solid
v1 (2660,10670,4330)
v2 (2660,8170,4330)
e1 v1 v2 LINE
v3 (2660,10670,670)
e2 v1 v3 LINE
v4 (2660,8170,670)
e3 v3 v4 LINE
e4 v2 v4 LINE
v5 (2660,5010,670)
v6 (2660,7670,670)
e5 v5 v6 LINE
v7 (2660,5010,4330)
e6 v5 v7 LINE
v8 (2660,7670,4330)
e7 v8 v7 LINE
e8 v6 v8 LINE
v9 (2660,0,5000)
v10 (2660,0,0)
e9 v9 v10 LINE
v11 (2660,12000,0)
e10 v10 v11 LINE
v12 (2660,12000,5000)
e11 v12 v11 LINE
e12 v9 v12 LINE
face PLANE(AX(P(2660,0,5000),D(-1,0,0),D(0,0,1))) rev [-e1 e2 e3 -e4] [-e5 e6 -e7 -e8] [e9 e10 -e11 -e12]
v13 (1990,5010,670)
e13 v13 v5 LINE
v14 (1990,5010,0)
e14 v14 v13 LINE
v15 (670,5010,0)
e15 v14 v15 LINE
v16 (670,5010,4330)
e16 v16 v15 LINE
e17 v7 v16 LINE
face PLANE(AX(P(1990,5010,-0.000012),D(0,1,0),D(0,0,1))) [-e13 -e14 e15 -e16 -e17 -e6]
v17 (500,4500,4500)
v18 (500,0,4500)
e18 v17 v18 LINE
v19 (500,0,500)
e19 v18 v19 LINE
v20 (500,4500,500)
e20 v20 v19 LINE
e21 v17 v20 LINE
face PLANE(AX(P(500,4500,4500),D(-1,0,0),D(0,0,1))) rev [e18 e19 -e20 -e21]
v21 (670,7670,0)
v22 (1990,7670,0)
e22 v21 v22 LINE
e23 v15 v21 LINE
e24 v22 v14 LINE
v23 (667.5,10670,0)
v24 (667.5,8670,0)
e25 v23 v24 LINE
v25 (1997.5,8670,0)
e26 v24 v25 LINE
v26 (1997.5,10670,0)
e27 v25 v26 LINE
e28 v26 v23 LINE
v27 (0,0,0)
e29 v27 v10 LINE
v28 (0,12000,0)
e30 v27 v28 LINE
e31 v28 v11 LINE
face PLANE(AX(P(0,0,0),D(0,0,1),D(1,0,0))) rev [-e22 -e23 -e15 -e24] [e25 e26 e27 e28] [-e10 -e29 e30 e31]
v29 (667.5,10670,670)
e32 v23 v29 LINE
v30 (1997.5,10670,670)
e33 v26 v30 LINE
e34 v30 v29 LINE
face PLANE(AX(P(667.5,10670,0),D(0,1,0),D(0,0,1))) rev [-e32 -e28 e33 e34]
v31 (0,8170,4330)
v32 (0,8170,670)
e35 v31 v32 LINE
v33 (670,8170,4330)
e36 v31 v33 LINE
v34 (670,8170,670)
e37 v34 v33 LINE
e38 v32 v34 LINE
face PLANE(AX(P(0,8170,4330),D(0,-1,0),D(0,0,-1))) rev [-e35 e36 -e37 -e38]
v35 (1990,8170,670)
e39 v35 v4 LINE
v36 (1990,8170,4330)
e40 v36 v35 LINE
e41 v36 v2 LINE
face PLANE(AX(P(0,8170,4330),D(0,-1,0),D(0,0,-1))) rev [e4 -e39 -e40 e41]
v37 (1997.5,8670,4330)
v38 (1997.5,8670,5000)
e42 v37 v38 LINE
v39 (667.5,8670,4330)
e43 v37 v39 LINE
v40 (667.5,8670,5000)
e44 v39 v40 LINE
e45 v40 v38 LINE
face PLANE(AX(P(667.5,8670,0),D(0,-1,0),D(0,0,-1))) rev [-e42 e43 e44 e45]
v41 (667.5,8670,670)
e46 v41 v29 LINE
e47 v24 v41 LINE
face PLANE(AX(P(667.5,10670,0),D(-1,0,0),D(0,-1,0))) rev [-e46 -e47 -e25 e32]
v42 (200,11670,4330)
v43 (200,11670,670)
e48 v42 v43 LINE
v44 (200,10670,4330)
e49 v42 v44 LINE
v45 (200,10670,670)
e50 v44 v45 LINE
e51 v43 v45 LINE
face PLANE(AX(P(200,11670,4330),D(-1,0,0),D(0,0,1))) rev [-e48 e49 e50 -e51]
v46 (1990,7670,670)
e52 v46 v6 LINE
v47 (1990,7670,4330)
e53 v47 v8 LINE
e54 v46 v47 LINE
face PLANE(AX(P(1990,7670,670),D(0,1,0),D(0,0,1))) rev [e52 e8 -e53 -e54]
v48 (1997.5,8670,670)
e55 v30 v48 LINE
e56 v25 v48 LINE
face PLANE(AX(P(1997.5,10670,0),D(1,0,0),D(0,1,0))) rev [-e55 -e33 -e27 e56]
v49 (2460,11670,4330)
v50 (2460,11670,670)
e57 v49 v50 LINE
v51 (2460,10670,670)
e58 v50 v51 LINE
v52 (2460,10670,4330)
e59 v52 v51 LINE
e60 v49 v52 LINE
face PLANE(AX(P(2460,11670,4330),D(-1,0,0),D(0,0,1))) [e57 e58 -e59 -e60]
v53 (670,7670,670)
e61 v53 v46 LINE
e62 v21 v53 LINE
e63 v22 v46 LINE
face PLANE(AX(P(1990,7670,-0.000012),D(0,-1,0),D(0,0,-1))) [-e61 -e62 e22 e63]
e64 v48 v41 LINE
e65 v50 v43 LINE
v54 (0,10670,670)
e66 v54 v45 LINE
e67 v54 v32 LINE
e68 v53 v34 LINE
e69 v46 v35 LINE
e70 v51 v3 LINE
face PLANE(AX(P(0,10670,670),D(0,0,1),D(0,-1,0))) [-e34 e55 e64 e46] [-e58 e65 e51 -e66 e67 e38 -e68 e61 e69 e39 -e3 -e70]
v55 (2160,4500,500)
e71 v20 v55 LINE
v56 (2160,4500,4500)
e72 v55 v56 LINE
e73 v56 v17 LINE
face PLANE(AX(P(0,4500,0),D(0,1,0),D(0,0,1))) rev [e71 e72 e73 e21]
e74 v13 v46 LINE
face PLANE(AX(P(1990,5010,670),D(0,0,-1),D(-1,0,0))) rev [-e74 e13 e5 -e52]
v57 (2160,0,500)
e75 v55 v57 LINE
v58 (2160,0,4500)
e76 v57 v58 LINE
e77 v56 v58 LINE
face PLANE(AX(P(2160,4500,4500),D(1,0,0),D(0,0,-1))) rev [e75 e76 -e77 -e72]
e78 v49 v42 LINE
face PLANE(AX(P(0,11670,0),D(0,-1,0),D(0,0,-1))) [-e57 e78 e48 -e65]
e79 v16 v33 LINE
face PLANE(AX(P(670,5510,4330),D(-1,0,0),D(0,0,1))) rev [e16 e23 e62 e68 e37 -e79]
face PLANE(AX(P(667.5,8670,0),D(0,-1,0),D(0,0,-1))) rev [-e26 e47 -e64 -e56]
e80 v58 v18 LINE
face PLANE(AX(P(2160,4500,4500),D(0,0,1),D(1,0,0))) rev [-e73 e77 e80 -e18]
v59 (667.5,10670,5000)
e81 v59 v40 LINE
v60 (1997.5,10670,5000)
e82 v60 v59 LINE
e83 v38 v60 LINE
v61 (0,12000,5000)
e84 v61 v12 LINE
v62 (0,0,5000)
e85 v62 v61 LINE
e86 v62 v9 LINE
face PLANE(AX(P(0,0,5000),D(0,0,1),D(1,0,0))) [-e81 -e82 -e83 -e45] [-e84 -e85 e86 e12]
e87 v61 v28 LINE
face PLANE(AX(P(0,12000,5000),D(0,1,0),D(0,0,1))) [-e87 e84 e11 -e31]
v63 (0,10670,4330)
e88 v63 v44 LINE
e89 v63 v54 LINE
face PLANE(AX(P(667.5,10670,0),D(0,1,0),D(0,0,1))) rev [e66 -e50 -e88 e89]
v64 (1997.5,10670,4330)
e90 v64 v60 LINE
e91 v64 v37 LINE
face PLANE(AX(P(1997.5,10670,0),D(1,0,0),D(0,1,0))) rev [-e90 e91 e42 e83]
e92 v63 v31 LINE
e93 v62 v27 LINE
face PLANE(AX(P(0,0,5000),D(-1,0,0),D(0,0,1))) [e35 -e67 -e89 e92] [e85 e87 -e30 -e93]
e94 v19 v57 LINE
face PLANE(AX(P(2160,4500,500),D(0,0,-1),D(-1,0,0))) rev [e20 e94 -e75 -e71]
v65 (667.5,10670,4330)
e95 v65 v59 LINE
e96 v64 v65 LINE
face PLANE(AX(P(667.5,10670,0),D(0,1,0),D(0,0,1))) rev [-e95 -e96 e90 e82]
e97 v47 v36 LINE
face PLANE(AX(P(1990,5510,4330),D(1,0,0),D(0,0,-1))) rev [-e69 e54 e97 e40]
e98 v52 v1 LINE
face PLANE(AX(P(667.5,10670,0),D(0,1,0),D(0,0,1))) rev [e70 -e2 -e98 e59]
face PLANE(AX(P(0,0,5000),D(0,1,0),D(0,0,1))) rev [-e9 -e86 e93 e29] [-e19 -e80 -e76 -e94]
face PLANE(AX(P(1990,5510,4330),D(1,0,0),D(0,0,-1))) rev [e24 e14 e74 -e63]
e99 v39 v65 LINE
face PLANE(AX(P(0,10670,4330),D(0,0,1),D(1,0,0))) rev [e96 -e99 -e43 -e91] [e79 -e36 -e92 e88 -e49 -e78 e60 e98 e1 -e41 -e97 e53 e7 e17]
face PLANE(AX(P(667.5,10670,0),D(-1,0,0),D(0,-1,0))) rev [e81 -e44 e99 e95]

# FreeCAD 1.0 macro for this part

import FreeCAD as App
import Part
import Sketcher
from FreeCAD import Vector


def add_polygon(sketch, points):
    """Adds a closed chain of lines whose ends are joined by coincident constraints."""
    first, n = sketch.GeometryCount, len(points)
    for a, b in zip(points, points[1:] + points[:1]):
        sketch.addGeometry(Part.LineSegment(App.Vector(*a, 0), App.Vector(*b, 0)), False)
    for i in range(n):
        sketch.addConstraint(Sketcher.Constraint("Coincident", first + i, 2, first + (i + 1) % n, 1))

doc = App.newDocument("Part")
params = doc.addObject("Spreadsheet::Sheet", "Params")
for row, (alias, value) in enumerate([
    ("sketch1_width", "2660 mm"),
    ("sketch1_height", "12000 mm"),
    ("pad1_length", "5000 mm"),
    ("sketch2_width", "1330 mm"),
    ("sketch2_height", "2000 mm"),
    ("pocket1_length", "5000 mm"),
    ("sketch3_width", "2500 mm"),
    ("sketch3_height", "3660 mm"),
    ("sketch4_width", "1320 mm"),
    ("sketch4_height", "3660 mm"),
    ("pocket3_length", "2660 mm"),
    ("sketch5_height", "2660 mm"),
    ("sketch5_width", "1322.5 mm"),
    ("pocket4_length", "13270.348138 mm"),
    ("pocket4_length2", "4269 mm"),
    ("sketch6_height", "500 mm"),
    ("sketch6_width", "1322.5 mm"),
    ("pocket5_length", "61 mm"),
    ("sketch7_width", "2660 mm"),
    ("sketch7_height", "4269 mm"),
    ("pad2_length", "2.5 mm"),
    ("sketch8_width", "500 mm"),
    ("sketch8_height", "61 mm"),
    ("pad3_length", "2.5 mm"),
    ("sketch9_width", "2660 mm"),
    ("pocket6_length", "670 mm"),
    ("sketch10_width", "670 mm"),
    ("sketch10_height", "2660 mm"),
    ("pad4_length", "11.651451 mm"),
    ("sketch11_width", "2260 mm"),
    ("sketch11_height", "3660 mm"),
    ("pocket7_length", "1000 mm"),
    ("sketch12_width", "1660 mm"),
    ("sketch12_height", "4000 mm"),
    ("pocket8_length", "4500 mm"),
], start=1):
    params.set(f"A{row}", alias)
    params.set(f"B{row}", "=" + value)
    params.setAlias(f"B{row}", alias)

body = doc.addObject("PartDesign::Body", "Body")

# Sketch on XY plane
sketch1 = doc.addObject("Sketcher::SketchObject", "Sketch")
body.addObject(sketch1)
sketch1.AttachmentSupport = (doc.XY_Plane, [""])
sketch1.MapMode = "FlatFace"
add_polygon(sketch1, [(0, 12000), (0, 0), (2660, 0), (2660, 12000)])  # lines 0-3
sketch1.addConstraint(Sketcher.Constraint("Vertical", 0))
sketch1.addConstraint(Sketcher.Constraint("Horizontal", 1))
sketch1.addConstraint(Sketcher.Constraint("Vertical", 2))
sketch1.addConstraint(Sketcher.Constraint("Horizontal", 3))
sketch1.addConstraint(Sketcher.Constraint("Coincident", 0, 2, -1, 1))
sketch1.addConstraint(Sketcher.Constraint("DistanceX", 1, 1, 1, 2, 2660.0))
sketch1.addConstraint(Sketcher.Constraint("DistanceY", 0, 2, 0, 1, 12000.0))
sketch1.setExpression("Constraints[9]", "Params.sketch1_width")
sketch1.setExpression("Constraints[10]", "Params.sketch1_height")
pad1 = doc.addObject("PartDesign::Pad", "Pad")
body.addObject(pad1)
pad1.Profile = sketch1
pad1.setExpression("Length", "Params.pad1_length")

# Sketch on XY plane
sketch2 = doc.addObject("Sketcher::SketchObject", "Sketch001")
body.addObject(sketch2)
sketch2.AttachmentSupport = (doc.XY_Plane, [""])
sketch2.MapMode = "FlatFace"
sketch2.AttachmentOffset = App.Placement(Vector(0, 0, 5000), App.Rotation())
add_polygon(sketch2, [(668, 10670), (668, 8670), (1998, 8670), (1998, 10670)])  # lines 0-3
sketch2.addConstraint(Sketcher.Constraint("Vertical", 0))
sketch2.addConstraint(Sketcher.Constraint("Horizontal", 1))
sketch2.addConstraint(Sketcher.Constraint("Vertical", 2))
sketch2.addConstraint(Sketcher.Constraint("Horizontal", 3))
sketch2.addConstraint(Sketcher.Constraint("DistanceX", 1, 1, 1, 2, 1330.0))
sketch2.addConstraint(Sketcher.Constraint("DistanceY", 0, 2, 0, 1, 2000.0))
sketch2.addConstraint(Sketcher.Constraint("DistanceY", -1, 1, 0, 2, 8670.0))
sketch2.addConstraint(Sketcher.Constraint("DistanceX", -1, 1, 0, 2, 667.5))
sketch2.setExpression("Constraints[8]", "Params.sketch2_width")
sketch2.setExpression("Constraints[9]", "Params.sketch2_height")
pocket1 = doc.addObject("PartDesign::Pocket", "Pocket")
body.addObject(pocket1)
pocket1.Profile = sketch2
pocket1.setExpression("Length", "Params.pocket1_length")

# Sketch on YZ plane
sketch3 = doc.addObject("Sketcher::SketchObject", "Sketch002")
body.addObject(sketch3)
sketch3.AttachmentSupport = (doc.YZ_Plane, [""])
sketch3.MapMode = "FlatFace"
sketch3.AttachmentOffset = App.Placement(Vector(0, 0, 2660), App.Rotation())
add_polygon(sketch3, [(10670, 4330), (8170, 4330), (8170, 670), (10670, 670)])  # lines 0-3
sketch3.addConstraint(Sketcher.Constraint("Horizontal", 0))
sketch3.addConstraint(Sketcher.Constraint("Vertical", 1))
sketch3.addConstraint(Sketcher.Constraint("Horizontal", 2))
sketch3.addConstraint(Sketcher.Constraint("Vertical", 3))
sketch3.addConstraint(Sketcher.Constraint("DistanceX", 0, 2, 0, 1, 2500.0))
sketch3.addConstraint(Sketcher.Constraint("DistanceY", 1, 2, 1, 1, 3660.0))
sketch3.addConstraint(Sketcher.Constraint("DistanceX", -1, 1, 0, 2, 8170.0))
sketch3.addConstraint(Sketcher.Constraint("DistanceY", -1, 1, 0, 2, 4330.0))
sketch3.setExpression("Constraints[8]", "Params.sketch3_width")
sketch3.setExpression("Constraints[9]", "Params.sketch3_height")
pocket2 = doc.addObject("PartDesign::Pocket", "Pocket001")
body.addObject(pocket2)
pocket2.Profile = sketch3
pocket2.Type = "ThroughAll"

# Sketch on XZ plane
sketch4 = doc.addObject("Sketcher::SketchObject", "Sketch003")
body.addObject(sketch4)
sketch4.AttachmentSupport = (doc.XZ_Plane, [""])
sketch4.MapMode = "FlatFace"
sketch4.AttachmentOffset = App.Placement(Vector(0, 0, -8170), App.Rotation())
add_polygon(sketch4, [(670, 670), (670, 4330), (1990, 4330), (1990, 670)])  # lines 0-3
sketch4.addConstraint(Sketcher.Constraint("Vertical", 0))
sketch4.addConstraint(Sketcher.Constraint("Horizontal", 1))
sketch4.addConstraint(Sketcher.Constraint("Vertical", 2))
sketch4.addConstraint(Sketcher.Constraint("Horizontal", 3))
sketch4.addConstraint(Sketcher.Constraint("DistanceX", 1, 1, 1, 2, 1320.0))
sketch4.addConstraint(Sketcher.Constraint("DistanceY", 0, 1, 0, 2, 3660.0))
sketch4.addConstraint(Sketcher.Constraint("DistanceX", -1, 1, 0, 2, 670.0))
sketch4.addConstraint(Sketcher.Constraint("DistanceY", -1, 1, 0, 2, 4330.0))
sketch4.setExpression("Constraints[8]", "Params.sketch4_width")
sketch4.setExpression("Constraints[9]", "Params.sketch4_height")
pocket3 = doc.addObject("PartDesign::Pocket", "Pocket002")
body.addObject(pocket3)
pocket3.Profile = sketch4
pocket3.setExpression("Length", "Params.pocket3_length")
pocket3.Reversed = True

# Sketch on XY plane
sketch5 = doc.addObject("Sketcher::SketchObject", "Sketch004")
body.addObject(sketch5)
sketch5.AttachmentSupport = (doc.XY_Plane, [""])
sketch5.MapMode = "FlatFace"
add_polygon(sketch5, [(1990, 7670), (1990, 5010), (668, 5010), (668, 7670)])  # lines 0-3
sketch5.addConstraint(Sketcher.Constraint("Vertical", 0))
sketch5.addConstraint(Sketcher.Constraint("Horizontal", 1))
sketch5.addConstraint(Sketcher.Constraint("Vertical", 2))
sketch5.addConstraint(Sketcher.Constraint("Horizontal", 3))
sketch5.addConstraint(Sketcher.Constraint("DistanceY", 0, 2, 0, 1, 2660.0))
sketch5.addConstraint(Sketcher.Constraint("DistanceX", 1, 2, 1, 1, 1322.5))
sketch5.addConstraint(Sketcher.Constraint("DistanceX", -1, 1, 0, 2, 1990.0))
sketch5.addConstraint(Sketcher.Constraint("DistanceY", -1, 1, 0, 2, 5010.0))
sketch5.setExpression("Constraints[8]", "Params.sketch5_height")
sketch5.setExpression("Constraints[9]", "Params.sketch5_width")
pocket4 = doc.addObject("PartDesign::Pocket", "Pocket003")
body.addObject(pocket4)
pocket4.Profile = sketch5
pocket4.Type = "TwoLengths"
pocket4.setExpression("Length", "Params.pocket4_length")
pocket4.setExpression("Length2", "Params.pocket4_length2")

# Sketch on XY plane
sketch6 = doc.addObject("Sketcher::SketchObject", "Sketch005")
body.addObject(sketch6)
sketch6.AttachmentSupport = (doc.XY_Plane, [""])
sketch6.MapMode = "FlatFace"
sketch6.AttachmentOffset = App.Placement(Vector(0, 0, 4269), App.Rotation())
add_polygon(sketch6, [(1990, 5510), (1990, 5010), (668, 5010), (668, 5510)])  # lines 0-3
sketch6.addConstraint(Sketcher.Constraint("Vertical", 0))
sketch6.addConstraint(Sketcher.Constraint("Horizontal", 1))
sketch6.addConstraint(Sketcher.Constraint("Vertical", 2))
sketch6.addConstraint(Sketcher.Constraint("Horizontal", 3))
sketch6.addConstraint(Sketcher.Constraint("DistanceY", 0, 2, 0, 1, 500.0))
sketch6.addConstraint(Sketcher.Constraint("DistanceX", 1, 2, 1, 1, 1322.5))
sketch6.addConstraint(Sketcher.Constraint("DistanceX", -1, 1, 0, 2, 1990.0))
sketch6.addConstraint(Sketcher.Constraint("DistanceY", -1, 1, 0, 2, 5010.0))
sketch6.setExpression("Constraints[8]", "Params.sketch6_height")
sketch6.setExpression("Constraints[9]", "Params.sketch6_width")
pocket5 = doc.addObject("PartDesign::Pocket", "Pocket004")
body.addObject(pocket5)
pocket5.Profile = sketch6
pocket5.setExpression("Length", "Params.pocket5_length")
pocket5.Reversed = True

# Sketch on YZ plane
sketch7 = doc.addObject("Sketcher::SketchObject", "Sketch006")
body.addObject(sketch7)
sketch7.AttachmentSupport = (doc.YZ_Plane, [""])
sketch7.MapMode = "FlatFace"
sketch7.AttachmentOffset = App.Placement(Vector(0, 0, 667.5), App.Rotation())
add_polygon(sketch7, [(7670, 4269), (5010, 4269), (5010, 0), (7670, 0)])  # lines 0-3
sketch7.addConstraint(Sketcher.Constraint("Horizontal", 0))
sketch7.addConstraint(Sketcher.Constraint("Vertical", 1))
sketch7.addConstraint(Sketcher.Constraint("Horizontal", 2))
sketch7.addConstraint(Sketcher.Constraint("Vertical", 3))
sketch7.addConstraint(Sketcher.Constraint("PointOnObject", 1, 2, -1))
sketch7.addConstraint(Sketcher.Constraint("DistanceX", 0, 2, 0, 1, 2660.0))
sketch7.addConstraint(Sketcher.Constraint("DistanceY", 1, 2, 1, 1, 4269.0))
sketch7.addConstraint(Sketcher.Constraint("DistanceX", -1, 1, 0, 2, 5010.0))
sketch7.setExpression("Constraints[9]", "Params.sketch7_width")
sketch7.setExpression("Constraints[10]", "Params.sketch7_height")
pad2 = doc.addObject("PartDesign::Pad", "Pad001")
body.addObject(pad2)
pad2.Profile = sketch7
pad2.setExpression("Length", "Params.pad2_length")

# Sketch on YZ plane
sketch8 = doc.addObject("Sketcher::SketchObject", "Sketch007")
body.addObject(sketch8)
sketch8.AttachmentSupport = (doc.YZ_Plane, [""])
sketch8.MapMode = "FlatFace"
sketch8.AttachmentOffset = App.Placement(Vector(0, 0, 667.5), App.Rotation())
add_polygon(sketch8, [(5510, 4330), (5010, 4330), (5010, 4269), (5510, 4269)])  # lines 0-3
sketch8.addConstraint(Sketcher.Constraint("Horizontal", 0))
sketch8.addConstraint(Sketcher.Constraint("Vertical", 1))
sketch8.addConstraint(Sketcher.Constraint("Horizontal", 2))
sketch8.addConstraint(Sketcher.Constraint("Vertical", 3))
sketch8.addConstraint(Sketcher.Constraint("DistanceX", 0, 2, 0, 1, 500.0))
sketch8.addConstraint(Sketcher.Constraint("DistanceY", 1, 2, 1, 1, 61.0))
sketch8.addConstraint(Sketcher.Constraint("DistanceX", -1, 1, 0, 2, 5010.0))
sketch8.addConstraint(Sketcher.Constraint("DistanceY", -1, 1, 0, 2, 4330.0))
sketch8.setExpression("Constraints[8]", "Params.sketch8_width")
sketch8.setExpression("Constraints[9]", "Params.sketch8_height")
pad3 = doc.addObject("PartDesign::Pad", "Pad002")
body.addObject(pad3)
pad3.Profile = sketch8
pad3.setExpression("Length", "Params.pad3_length")

# Sketch on YZ plane
sketch9 = doc.addObject("Sketcher::SketchObject", "Sketch008")
body.addObject(sketch9)
sketch9.AttachmentSupport = (doc.YZ_Plane, [""])
sketch9.MapMode = "FlatFace"
sketch9.AttachmentOffset = App.Placement(Vector(0, 0, 2660), App.Rotation())
add_polygon(sketch9, [(7670, 4342), (5010, 4342), (5010, 670), (7670, 670)])  # lines 0-3
sketch9.addConstraint(Sketcher.Constraint("Horizontal", 0))
sketch9.addConstraint(Sketcher.Constraint("Vertical", 1))
sketch9.addConstraint(Sketcher.Constraint("Horizontal", 2))
sketch9.addConstraint(Sketcher.Constraint("Vertical", 3))
sketch9.addConstraint(Sketcher.Constraint("DistanceX", 0, 2, 0, 1, 2660.0))
sketch9.addConstraint(Sketcher.Constraint("DistanceX", -1, 1, 0, 2, 5010.0))
sketch9.addConstraint(Sketcher.Constraint("DistanceY", -1, 1, 1, 2, 670.0))
sketch9.addConstraint(Sketcher.Constraint("DistanceY", 1, 2, 1, 1, 3671.651451))
sketch9.setExpression("Constraints[8]", "Params.sketch9_width")
pocket6 = doc.addObject("PartDesign::Pocket", "Pocket005")
body.addObject(pocket6)
pocket6.Profile = sketch9
pocket6.setExpression("Length", "Params.pocket6_length")

# Sketch on XY plane
sketch10 = doc.addObject("Sketcher::SketchObject", "Sketch009")
body.addObject(sketch10)
sketch10.AttachmentSupport = (doc.XY_Plane, [""])
sketch10.MapMode = "FlatFace"
sketch10.AttachmentOffset = App.Placement(Vector(0, 0, 4341.651451), App.Rotation())
add_polygon(sketch10, [(2660, 7670), (2660, 5010), (1990, 5010), (1990, 7670)])  # lines 0-3
sketch10.addConstraint(Sketcher.Constraint("Vertical", 0))
sketch10.addConstraint(Sketcher.Constraint("Horizontal", 1))
sketch10.addConstraint(Sketcher.Constraint("Vertical", 2))
sketch10.addConstraint(Sketcher.Constraint("Horizontal", 3))
sketch10.addConstraint(Sketcher.Constraint("DistanceX", 1, 2, 1, 1, 670.0))
sketch10.addConstraint(Sketcher.Constraint("DistanceY", 0, 2, 0, 1, 2660.0))
sketch10.addConstraint(Sketcher.Constraint("DistanceX", -1, 1, 0, 2, 2660.0))
sketch10.addConstraint(Sketcher.Constraint("DistanceY", -1, 1, 0, 2, 5010.0))
sketch10.setExpression("Constraints[8]", "Params.sketch10_width")
sketch10.setExpression("Constraints[9]", "Params.sketch10_height")
pad4 = doc.addObject("PartDesign::Pad", "Pad003")
body.addObject(pad4)
pad4.Profile = sketch10
pad4.setExpression("Length", "Params.pad4_length")
pad4.Reversed = True

# Sketch on XZ plane
sketch11 = doc.addObject("Sketcher::SketchObject", "Sketch010")
body.addObject(sketch11)
sketch11.AttachmentSupport = (doc.XZ_Plane, [""])
sketch11.MapMode = "FlatFace"
sketch11.AttachmentOffset = App.Placement(Vector(0, 0, -10670), App.Rotation())
add_polygon(sketch11, [(200, 4330), (200, 670), (2460, 670), (2460, 4330)])  # lines 0-3
sketch11.addConstraint(Sketcher.Constraint("Vertical", 0))
sketch11.addConstraint(Sketcher.Constraint("Horizontal", 1))
sketch11.addConstraint(Sketcher.Constraint("Vertical", 2))
sketch11.addConstraint(Sketcher.Constraint("Horizontal", 3))
sketch11.addConstraint(Sketcher.Constraint("DistanceX", 1, 1, 1, 2, 2260.0))
sketch11.addConstraint(Sketcher.Constraint("DistanceY", 0, 2, 0, 1, 3660.0))
sketch11.addConstraint(Sketcher.Constraint("DistanceX", -1, 1, 0, 2, 200.0))
sketch11.addConstraint(Sketcher.Constraint("DistanceY", -1, 1, 0, 2, 670.0))
sketch11.setExpression("Constraints[8]", "Params.sketch11_width")
sketch11.setExpression("Constraints[9]", "Params.sketch11_height")
pocket7 = doc.addObject("PartDesign::Pocket", "Pocket006")
body.addObject(pocket7)
pocket7.Profile = sketch11
pocket7.setExpression("Length", "Params.pocket7_length")

# Sketch on XZ plane
sketch12 = doc.addObject("Sketcher::SketchObject", "Sketch011")
body.addObject(sketch12)
sketch12.AttachmentSupport = (doc.XZ_Plane, [""])
sketch12.MapMode = "FlatFace"
add_polygon(sketch12, [(500, 4500), (500, 500), (2160, 500), (2160, 4500)])  # lines 0-3
sketch12.addConstraint(Sketcher.Constraint("Vertical", 0))
sketch12.addConstraint(Sketcher.Constraint("Horizontal", 1))
sketch12.addConstraint(Sketcher.Constraint("Vertical", 2))
sketch12.addConstraint(Sketcher.Constraint("Horizontal", 3))
sketch12.addConstraint(Sketcher.Constraint("DistanceX", 1, 1, 1, 2, 1660.0))
sketch12.addConstraint(Sketcher.Constraint("DistanceY", 0, 2, 0, 1, 4000.0))
sketch12.addConstraint(Sketcher.Constraint("DistanceX", -1, 1, 0, 2, 500.0))
sketch12.addConstraint(Sketcher.Constraint("DistanceY", -1, 1, 0, 2, 500.0))
sketch12.setExpression("Constraints[8]", "Params.sketch12_width")
sketch12.setExpression("Constraints[9]", "Params.sketch12_height")
pocket8 = doc.addObject("PartDesign::Pocket", "Pocket007")
body.addObject(pocket8)
pocket8.Profile = sketch12
pocket8.setExpression("Length", "Params.pocket8_length")

doc.recompute()
